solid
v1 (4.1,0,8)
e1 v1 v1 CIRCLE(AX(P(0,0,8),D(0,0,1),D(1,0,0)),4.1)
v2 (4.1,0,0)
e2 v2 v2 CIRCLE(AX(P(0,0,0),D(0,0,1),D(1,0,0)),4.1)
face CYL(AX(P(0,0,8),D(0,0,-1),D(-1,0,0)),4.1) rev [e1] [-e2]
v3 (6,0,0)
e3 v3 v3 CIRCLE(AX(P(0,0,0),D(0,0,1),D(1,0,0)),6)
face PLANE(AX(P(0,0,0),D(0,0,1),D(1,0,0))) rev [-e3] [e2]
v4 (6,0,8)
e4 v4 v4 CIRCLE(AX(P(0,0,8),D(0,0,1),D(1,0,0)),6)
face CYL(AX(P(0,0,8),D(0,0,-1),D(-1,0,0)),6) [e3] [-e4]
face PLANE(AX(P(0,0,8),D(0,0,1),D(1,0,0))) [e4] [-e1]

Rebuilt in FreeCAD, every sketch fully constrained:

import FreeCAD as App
import Part
import Sketcher
from FreeCAD import Vector

doc = App.newDocument("Part")
params = doc.addObject("Spreadsheet::Sheet", "Params")
for row, (alias, value) in enumerate([
    ("sketch1_diameter", "12 mm"),
    ("sketch1_diameter2", "8.2 mm"),
    ("pad1_length", "8 mm"),
], start=1):
    params.set(f"A{row}", alias)
    params.set(f"B{row}", "=" + value)
    params.setAlias(f"B{row}", alias)

body = doc.addObject("PartDesign::Body", "Body")

# Sketch on XY plane
sketch1 = doc.addObject("Sketcher::SketchObject", "Sketch")
body.addObject(sketch1)
sketch1.AttachmentSupport = (doc.XY_Plane, [""])
sketch1.MapMode = "FlatFace"
sketch1.addGeometry(Part.Circle(Vector(0, 0, 0), Vector(0, 0, 1), 6), False)
sketch1.addGeometry(Part.Circle(Vector(0, 0, 0), Vector(0, 0, 1), 4.1), False)
sketch1.addConstraint(Sketcher.Constraint("Coincident", 0, 3, -1, 1))
sketch1.addConstraint(Sketcher.Constraint("Coincident", 1, 3, -1, 1))
sketch1.addConstraint(Sketcher.Constraint("Diameter", 0, 12.0))
sketch1.addConstraint(Sketcher.Constraint("Diameter", 1, 8.2))
sketch1.setExpression("Constraints[2]", "Params.sketch1_diameter")
sketch1.setExpression("Constraints[3]", "Params.sketch1_diameter2")
pad1 = doc.addObject("PartDesign::Pad", "Pad")
body.addObject(pad1)
pad1.Profile = sketch1
pad1.setExpression("Length", "Params.pad1_length")

doc.recompute()
